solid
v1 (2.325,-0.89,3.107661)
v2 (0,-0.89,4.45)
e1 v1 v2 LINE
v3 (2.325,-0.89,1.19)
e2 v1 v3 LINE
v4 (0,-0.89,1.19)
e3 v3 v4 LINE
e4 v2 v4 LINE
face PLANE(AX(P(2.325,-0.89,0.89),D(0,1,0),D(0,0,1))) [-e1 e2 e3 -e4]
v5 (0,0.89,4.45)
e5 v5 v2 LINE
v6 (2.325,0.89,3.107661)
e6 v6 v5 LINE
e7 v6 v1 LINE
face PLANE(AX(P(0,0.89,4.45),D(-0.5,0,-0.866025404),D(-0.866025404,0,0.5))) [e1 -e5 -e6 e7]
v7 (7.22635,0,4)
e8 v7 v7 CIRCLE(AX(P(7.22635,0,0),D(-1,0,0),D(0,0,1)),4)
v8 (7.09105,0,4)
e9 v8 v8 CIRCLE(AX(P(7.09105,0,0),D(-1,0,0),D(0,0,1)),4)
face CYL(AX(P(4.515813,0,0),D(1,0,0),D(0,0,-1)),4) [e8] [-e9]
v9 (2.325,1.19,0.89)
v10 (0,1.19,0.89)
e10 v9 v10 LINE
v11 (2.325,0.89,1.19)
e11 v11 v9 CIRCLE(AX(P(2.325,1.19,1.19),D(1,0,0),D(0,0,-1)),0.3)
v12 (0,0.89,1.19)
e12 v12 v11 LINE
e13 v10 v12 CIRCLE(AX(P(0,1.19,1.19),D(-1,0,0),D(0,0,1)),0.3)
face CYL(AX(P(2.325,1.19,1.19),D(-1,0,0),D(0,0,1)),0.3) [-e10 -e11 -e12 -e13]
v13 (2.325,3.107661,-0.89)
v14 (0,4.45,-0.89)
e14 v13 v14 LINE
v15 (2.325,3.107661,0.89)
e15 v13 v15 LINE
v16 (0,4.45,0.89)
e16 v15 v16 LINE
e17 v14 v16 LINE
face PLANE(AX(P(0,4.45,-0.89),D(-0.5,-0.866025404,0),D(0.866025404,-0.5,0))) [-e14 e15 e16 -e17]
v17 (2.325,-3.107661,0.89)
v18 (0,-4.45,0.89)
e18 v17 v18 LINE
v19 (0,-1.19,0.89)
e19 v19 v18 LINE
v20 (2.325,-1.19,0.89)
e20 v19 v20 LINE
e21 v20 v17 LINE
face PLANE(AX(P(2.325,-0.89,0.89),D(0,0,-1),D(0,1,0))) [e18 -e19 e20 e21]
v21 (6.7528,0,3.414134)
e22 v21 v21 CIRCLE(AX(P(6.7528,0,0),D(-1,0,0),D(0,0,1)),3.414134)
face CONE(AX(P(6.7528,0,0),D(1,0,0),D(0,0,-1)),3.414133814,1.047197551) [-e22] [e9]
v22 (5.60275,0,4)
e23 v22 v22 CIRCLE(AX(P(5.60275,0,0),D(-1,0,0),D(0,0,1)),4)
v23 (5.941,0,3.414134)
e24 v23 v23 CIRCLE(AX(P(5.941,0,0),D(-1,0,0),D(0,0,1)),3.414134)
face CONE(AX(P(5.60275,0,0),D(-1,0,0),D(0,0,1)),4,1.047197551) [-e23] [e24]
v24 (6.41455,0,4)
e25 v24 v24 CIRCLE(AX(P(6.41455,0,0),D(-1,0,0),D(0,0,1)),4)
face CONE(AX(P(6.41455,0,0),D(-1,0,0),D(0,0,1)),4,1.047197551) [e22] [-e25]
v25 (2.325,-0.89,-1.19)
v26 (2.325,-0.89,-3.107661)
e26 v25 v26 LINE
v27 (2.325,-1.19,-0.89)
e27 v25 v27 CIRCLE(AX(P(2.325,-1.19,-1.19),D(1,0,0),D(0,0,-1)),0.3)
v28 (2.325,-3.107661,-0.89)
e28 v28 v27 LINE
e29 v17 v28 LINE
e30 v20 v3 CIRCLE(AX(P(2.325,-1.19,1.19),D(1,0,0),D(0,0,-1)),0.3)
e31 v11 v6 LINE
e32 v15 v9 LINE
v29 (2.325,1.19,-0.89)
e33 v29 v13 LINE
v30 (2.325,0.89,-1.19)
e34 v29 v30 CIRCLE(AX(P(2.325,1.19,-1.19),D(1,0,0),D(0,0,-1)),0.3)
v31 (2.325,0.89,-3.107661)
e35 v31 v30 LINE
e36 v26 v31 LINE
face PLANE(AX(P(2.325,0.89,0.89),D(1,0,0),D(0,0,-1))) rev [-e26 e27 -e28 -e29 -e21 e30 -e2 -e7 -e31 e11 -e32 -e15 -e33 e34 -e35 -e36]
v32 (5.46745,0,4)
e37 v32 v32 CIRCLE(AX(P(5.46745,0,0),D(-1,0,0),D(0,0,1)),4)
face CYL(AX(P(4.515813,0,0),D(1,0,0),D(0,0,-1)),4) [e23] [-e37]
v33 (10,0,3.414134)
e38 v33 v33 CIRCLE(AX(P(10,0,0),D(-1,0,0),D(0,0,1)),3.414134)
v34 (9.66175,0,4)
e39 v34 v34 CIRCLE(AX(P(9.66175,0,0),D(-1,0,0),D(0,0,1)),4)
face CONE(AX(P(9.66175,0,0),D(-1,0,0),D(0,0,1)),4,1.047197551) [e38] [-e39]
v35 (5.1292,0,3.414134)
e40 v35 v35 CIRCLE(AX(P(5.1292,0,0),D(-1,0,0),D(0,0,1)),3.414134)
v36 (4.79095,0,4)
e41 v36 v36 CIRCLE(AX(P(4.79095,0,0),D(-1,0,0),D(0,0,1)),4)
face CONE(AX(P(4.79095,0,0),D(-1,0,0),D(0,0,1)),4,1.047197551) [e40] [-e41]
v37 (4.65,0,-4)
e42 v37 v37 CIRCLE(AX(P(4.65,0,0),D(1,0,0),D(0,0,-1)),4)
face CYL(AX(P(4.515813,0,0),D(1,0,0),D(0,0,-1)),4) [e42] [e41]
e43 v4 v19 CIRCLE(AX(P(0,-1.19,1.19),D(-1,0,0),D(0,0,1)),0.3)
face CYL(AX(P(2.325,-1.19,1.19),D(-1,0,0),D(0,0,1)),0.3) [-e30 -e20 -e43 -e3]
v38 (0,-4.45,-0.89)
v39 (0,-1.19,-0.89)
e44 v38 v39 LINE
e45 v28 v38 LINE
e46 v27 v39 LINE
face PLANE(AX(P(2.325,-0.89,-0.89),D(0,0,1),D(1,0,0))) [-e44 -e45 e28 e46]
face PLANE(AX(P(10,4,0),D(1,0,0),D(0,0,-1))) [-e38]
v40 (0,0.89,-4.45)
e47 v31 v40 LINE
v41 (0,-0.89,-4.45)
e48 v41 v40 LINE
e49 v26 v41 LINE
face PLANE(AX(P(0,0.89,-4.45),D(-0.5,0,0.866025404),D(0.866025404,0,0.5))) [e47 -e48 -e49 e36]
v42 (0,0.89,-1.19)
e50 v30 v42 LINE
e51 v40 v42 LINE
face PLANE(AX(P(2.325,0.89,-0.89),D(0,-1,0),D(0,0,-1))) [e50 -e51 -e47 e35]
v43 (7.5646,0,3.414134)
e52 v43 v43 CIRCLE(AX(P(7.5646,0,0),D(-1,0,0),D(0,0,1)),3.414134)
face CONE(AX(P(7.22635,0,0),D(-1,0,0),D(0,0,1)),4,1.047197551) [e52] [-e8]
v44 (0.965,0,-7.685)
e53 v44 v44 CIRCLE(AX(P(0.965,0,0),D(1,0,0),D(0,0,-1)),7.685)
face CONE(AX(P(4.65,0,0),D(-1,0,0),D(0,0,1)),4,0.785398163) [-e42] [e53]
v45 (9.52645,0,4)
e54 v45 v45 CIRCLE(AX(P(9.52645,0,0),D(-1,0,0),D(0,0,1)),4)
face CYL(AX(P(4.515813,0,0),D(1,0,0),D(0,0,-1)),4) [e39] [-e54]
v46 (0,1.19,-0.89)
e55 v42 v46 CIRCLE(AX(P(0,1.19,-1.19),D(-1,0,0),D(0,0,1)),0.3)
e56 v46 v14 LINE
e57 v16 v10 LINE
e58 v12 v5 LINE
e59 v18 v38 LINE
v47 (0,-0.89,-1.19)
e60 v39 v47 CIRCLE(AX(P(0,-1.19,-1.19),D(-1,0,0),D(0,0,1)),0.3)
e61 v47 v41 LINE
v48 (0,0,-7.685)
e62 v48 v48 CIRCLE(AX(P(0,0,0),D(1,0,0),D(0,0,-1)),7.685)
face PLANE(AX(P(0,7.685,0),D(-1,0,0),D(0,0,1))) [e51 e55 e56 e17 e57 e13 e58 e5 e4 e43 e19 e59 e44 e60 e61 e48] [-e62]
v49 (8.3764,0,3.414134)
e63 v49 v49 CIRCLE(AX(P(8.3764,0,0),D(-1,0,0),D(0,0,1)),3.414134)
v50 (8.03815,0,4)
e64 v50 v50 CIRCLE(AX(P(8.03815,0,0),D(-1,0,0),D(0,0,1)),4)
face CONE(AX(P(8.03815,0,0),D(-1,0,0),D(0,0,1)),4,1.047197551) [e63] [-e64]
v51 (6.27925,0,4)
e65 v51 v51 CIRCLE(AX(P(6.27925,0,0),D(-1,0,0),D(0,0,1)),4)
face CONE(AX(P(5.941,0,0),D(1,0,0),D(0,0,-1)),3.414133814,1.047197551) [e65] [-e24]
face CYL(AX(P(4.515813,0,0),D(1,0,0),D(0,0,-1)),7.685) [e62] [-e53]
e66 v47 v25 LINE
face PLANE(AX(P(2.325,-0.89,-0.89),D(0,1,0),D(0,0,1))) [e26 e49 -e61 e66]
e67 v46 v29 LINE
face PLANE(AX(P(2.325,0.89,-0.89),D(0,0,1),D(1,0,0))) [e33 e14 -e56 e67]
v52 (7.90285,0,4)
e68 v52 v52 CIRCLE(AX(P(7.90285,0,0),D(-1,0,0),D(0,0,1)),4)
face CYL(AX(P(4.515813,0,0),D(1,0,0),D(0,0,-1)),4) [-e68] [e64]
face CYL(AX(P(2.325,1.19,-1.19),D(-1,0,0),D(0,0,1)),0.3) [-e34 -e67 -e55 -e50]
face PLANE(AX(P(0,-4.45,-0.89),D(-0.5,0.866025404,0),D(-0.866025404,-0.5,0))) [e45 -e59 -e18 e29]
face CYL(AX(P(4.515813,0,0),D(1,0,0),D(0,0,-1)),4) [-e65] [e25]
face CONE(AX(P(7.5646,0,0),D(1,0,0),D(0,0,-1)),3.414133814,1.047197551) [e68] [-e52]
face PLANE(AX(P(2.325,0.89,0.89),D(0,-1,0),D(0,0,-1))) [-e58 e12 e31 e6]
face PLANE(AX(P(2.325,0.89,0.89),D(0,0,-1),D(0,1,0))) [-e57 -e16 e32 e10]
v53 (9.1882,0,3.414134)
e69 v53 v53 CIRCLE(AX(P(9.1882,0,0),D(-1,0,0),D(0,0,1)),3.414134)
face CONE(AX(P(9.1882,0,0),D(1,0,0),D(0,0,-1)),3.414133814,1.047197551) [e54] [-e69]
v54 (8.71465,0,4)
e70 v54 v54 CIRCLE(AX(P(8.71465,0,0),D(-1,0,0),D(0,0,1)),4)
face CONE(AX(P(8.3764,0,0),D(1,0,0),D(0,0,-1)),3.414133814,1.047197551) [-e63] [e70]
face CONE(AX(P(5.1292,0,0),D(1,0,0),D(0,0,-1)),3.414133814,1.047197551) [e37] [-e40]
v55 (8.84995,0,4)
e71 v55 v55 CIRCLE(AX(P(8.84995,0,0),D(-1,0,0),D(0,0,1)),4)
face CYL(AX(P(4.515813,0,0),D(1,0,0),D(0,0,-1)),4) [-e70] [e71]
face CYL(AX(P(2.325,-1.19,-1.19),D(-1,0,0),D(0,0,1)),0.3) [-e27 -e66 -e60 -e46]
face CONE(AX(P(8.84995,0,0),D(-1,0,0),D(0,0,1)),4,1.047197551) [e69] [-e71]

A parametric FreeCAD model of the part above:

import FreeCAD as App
import Part
import Sketcher
Q = App.Units.Quantity


def edges_at(feature, points):
    """Names of the edges that pass closest to the given points."""
    edges = feature.Shape.Edges
    near = lambda p: min(range(len(edges)), key=lambda i: edges[i].distToShape(Part.Vertex(*p))[0])
    return sorted({f"Edge{near(p) + 1}" for p in points})


def faces_at(feature, points):
    """Names of the faces that lie closest to the given points."""
    faces = feature.Shape.Faces
    near = lambda p: min(range(len(faces)), key=lambda i: faces[i].distToShape(Part.Vertex(*p))[0])
    return sorted({f"Face{near(p) + 1}" for p in points})


def add_polygon(sketch, points):
    """Adds a closed chain of lines whose ends are joined by coincident constraints."""
    first, n = sketch.GeometryCount, len(points)
    for a, b in zip(points, points[1:] + points[:1]):
        sketch.addGeometry(Part.LineSegment(App.Vector(*a, 0), App.Vector(*b, 0)), False)
    for i in range(n):
        sketch.addConstraint(Sketcher.Constraint("Coincident", first + i, 2, first + (i + 1) % n, 1))

doc = App.newDocument("Part")
body = doc.addObject("PartDesign::Body", "Body")

# Sketch on XY plane
sketch1 = body.newObject("Sketcher::SketchObject", "Sketch")
sketch1.AttachmentSupport = (doc.getObject("XY_Plane"), [""])
sketch1.MapMode = "FlatFace"
add_polygon(sketch1, [(10, 4), (4.7, 4), (1, 7.7), (0, 7.7), (0, 0), (10, 0)])  # lines 0-5
sketch1.addConstraint([
    Sketcher.Constraint("Horizontal", 0),
    Sketcher.Constraint("Horizontal", 2),
    Sketcher.Constraint("Vertical", 3),
    Sketcher.Constraint("Horizontal", 4),
    Sketcher.Constraint("Vertical", 5),
    Sketcher.Constraint("Coincident", 3, 2, -1, 1),
    Sketcher.Constraint("DistanceX", 4, 1, 4, 2, 10.0),
    Sketcher.Constraint("DistanceY", 5, 1, 5, 2, 4.0),
    Sketcher.Constraint("Angle", 1, Q("135 deg")),
    Sketcher.Constraint("DistanceX", 0, 2, 0, 1, 5.35),
    Sketcher.Constraint("DistanceX", 2, 2, 2, 1, 0.965),
])
revolution = body.newObject("PartDesign::Revolution", "Revolution")
revolution.Profile = sketch1
revolution.ReferenceAxis = (sketch1, ["H_Axis"])
revolution.Angle = 360

# Sketch on YZ plane
sketch2 = body.newObject("Sketcher::SketchObject", "Sketch001")
sketch2.AttachmentSupport = (doc.getObject("YZ_Plane"), [""])
sketch2.MapMode = "FlatFace"
add_polygon(sketch2, [(0.9, -0.9), (4.5, -0.9), (4.5, 0.9), (0.9, 0.9), (0.9, 4.5), (-0.9, 4.5), (-0.9, 0.9), (-4.5, 0.9), (-4.5, -0.9), (-0.9, -0.9), (-0.9, -4.5), (0.9, -4.5)])  # lines 0-11
sketch2.addConstraint([
    Sketcher.Constraint("Horizontal", 0),
    Sketcher.Constraint("Vertical", 1),
    Sketcher.Constraint("Horizontal", 2),
    Sketcher.Constraint("Vertical", 3),
    Sketcher.Constraint("Horizontal", 4),
    Sketcher.Constraint("Vertical", 5),
    Sketcher.Constraint("Horizontal", 6),
    Sketcher.Constraint("Vertical", 7),
    Sketcher.Constraint("Horizontal", 8),
    Sketcher.Constraint("Vertical", 9),
    Sketcher.Constraint("Horizontal", 10),
    Sketcher.Constraint("Vertical", 11),
    Sketcher.Constraint("Symmetric", 0, 2, 6, 2, -1, 1),
    Sketcher.Constraint("Symmetric", 2, 2, 8, 2, -1, 1),
    Sketcher.Constraint("Symmetric", 4, 2, 10, 2, -1, 1),
    Sketcher.Constraint("Symmetric", 2, 2, 5, 2, -2),
    Sketcher.Constraint("Equal", 10, 1),
    Sketcher.Constraint("Equal", 8, 3),
    Sketcher.Constraint("DistanceX", 0, 1, 0, 2, 3.56),
    Sketcher.Constraint("DistanceX", 4, 2, 4, 1, 1.78),
])
pocket1 = body.newObject("PartDesign::Pocket", "Pocket")
pocket1.Profile = sketch2
pocket1.Length = 2.325
pocket1.Reversed = True
doc.recompute()

draft = body.newObject("PartDesign::Draft", "Draft")
draft.Base = (pocket1, faces_at(pocket1, [
    (1.163, 4.45, 0),
    (1.163, 0, 4.45),
    (1.163, -4.45, 0),
    (1.163, 0, -4.45),
]))
draft.NeutralPlane = (doc.getObject("YZ_Plane"), [""])
draft.Angle = 30
draft.Reversed = True
doc.recompute()

fillet = body.newObject("PartDesign::Fillet", "Fillet")
fillet.Base = (draft, edges_at(draft, [
    (1.163, 0.89, 0.89),
    (1.163, -0.89, 0.89),
    (1.163, -0.89, -0.89),
    (1.163, 0.89, -0.89),
]))
fillet.Radius = 0.3

# Sketch on XY plane
sketch3 = body.newObject("Sketcher::SketchObject", "Sketch002")
sketch3.AttachmentSupport = (doc.getObject("XY_Plane"), [""])
sketch3.MapMode = "FlatFace"
add_polygon(sketch3, [(10, 3.4), (10.3, 4), (10.3, 4.7), (9.7, 4.7), (9.7, 4)])  # lines 0-4
sketch3.addConstraint([
    Sketcher.Constraint("Vertical", 1),
    Sketcher.Constraint("Horizontal", 2),
    Sketcher.Constraint("Vertical", 3),
    Sketcher.Constraint("Horizontal", 0, 2, 3, 2),
    Sketcher.Constraint("Equal", 2, 1),
    Sketcher.Constraint("Equal", 0, 4),
    Sketcher.Constraint("Angle", 0, Q("60 deg")),
    Sketcher.Constraint("DistanceY", -1, 1, 0, 2, 4.0),
    Sketcher.Constraint("DistanceX", -1, 1, 4, 2, 10.0),
    Sketcher.Constraint("DistanceX", 2, 2, 2, 1, 0.6765),
])
groove = body.newObject("PartDesign::Groove", "Groove")
groove.Profile = sketch3
groove.ReferenceAxis = (sketch3, ["H_Axis"])
groove.Angle = 360
doc.recompute()

linearpattern = body.newObject("PartDesign::LinearPattern", "LinearPattern")
linearpattern.Originals = [groove]
linearpattern.Direction = (doc.getObject("X_Axis"), [""])
linearpattern.Mode = "offset"
linearpattern.Offset = 0.8118
linearpattern.Occurrences = 7
linearpattern.Reversed = True
body.Tip = linearpattern

doc.recompute()
